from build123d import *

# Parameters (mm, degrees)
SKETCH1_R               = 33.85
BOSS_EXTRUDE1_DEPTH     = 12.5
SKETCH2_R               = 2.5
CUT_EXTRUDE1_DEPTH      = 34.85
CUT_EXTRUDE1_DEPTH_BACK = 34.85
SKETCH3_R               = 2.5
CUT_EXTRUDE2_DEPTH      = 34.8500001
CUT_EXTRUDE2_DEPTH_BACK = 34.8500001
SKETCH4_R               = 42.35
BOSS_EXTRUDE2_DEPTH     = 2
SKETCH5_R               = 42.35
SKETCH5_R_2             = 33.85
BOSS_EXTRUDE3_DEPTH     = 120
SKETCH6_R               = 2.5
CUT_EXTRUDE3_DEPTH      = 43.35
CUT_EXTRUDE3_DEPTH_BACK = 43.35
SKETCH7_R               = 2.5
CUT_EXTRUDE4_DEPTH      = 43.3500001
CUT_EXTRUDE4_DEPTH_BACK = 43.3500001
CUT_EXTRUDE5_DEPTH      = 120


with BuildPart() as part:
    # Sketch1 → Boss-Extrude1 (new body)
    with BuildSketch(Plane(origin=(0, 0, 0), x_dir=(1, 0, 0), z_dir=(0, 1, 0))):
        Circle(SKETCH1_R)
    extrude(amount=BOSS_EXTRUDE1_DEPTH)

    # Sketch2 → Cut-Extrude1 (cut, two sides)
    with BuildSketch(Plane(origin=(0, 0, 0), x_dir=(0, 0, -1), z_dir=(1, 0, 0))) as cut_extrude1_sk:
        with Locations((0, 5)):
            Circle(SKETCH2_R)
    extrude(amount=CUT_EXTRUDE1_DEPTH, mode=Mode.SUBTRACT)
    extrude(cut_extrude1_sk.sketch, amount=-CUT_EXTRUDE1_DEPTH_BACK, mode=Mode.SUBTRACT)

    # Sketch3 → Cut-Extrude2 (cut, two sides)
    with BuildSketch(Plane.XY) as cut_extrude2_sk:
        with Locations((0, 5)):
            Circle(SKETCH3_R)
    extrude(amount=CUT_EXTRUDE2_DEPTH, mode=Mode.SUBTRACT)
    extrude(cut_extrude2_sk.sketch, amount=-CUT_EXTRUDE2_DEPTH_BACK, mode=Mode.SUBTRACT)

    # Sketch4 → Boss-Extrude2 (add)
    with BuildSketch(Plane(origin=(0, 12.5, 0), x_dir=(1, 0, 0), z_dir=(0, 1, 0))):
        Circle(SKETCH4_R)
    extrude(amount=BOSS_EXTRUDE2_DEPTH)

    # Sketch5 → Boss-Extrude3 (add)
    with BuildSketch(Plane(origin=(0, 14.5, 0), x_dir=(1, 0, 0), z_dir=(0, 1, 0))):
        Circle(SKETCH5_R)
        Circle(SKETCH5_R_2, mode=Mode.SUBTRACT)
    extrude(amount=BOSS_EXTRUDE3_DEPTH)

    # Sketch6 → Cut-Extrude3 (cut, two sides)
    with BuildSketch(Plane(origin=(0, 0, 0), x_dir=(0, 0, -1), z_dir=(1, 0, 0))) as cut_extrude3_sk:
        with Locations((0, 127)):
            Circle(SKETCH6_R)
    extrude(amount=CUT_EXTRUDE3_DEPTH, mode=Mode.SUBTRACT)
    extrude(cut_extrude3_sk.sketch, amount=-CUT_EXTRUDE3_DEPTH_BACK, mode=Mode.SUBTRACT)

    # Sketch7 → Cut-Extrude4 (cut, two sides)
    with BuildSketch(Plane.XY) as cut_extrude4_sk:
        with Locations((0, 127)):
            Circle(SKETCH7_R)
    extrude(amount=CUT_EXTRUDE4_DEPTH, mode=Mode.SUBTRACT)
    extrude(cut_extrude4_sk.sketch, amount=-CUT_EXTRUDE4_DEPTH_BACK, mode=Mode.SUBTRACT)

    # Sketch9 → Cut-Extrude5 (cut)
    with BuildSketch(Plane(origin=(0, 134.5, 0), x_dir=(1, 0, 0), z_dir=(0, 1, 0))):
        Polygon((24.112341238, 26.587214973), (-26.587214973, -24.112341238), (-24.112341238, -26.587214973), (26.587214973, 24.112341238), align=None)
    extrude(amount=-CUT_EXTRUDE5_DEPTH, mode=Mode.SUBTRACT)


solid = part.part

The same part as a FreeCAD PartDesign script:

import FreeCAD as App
import Part
import Sketcher
from FreeCAD import Vector
Q = App.Units.Quantity

doc = App.newDocument("Part")
params = doc.addObject("Spreadsheet::Sheet", "Params")
for row, (alias, value) in enumerate([
    ("sketch1_diameter", "67.7 mm"),
    ("pad1_length", "12.5 mm"),
    ("sketch2_diameter", "5 mm"),
    ("sketch3_diameter", "5 mm"),
    ("sketch4_diameter", "84.7 mm"),
    ("pad2_length", "2 mm"),
    ("sketch5_diameter", "84.7 mm"),
    ("sketch5_diameter2", "67.7 mm"),
    ("pad3_length", "120 mm"),
    ("sketch6_diameter", "5 mm"),
    ("sketch7_diameter", "5 mm"),
    ("sketch8_length", "71.7 mm"),
    ("sketch8_length2", "3.5 mm"),
    ("pocket5_length", "120 mm"),
], start=1):
    params.set(f"A{row}", alias)
    params.set(f"B{row}", "=" + value)
    params.setAlias(f"B{row}", alias)

body = doc.addObject("PartDesign::Body", "Body")

sketch1 = doc.addObject("Sketcher::SketchObject", "Sketch")
body.addObject(sketch1)
sketch1.AttachmentSupport = (doc.XZ_Plane, [""])
sketch1.MapMode = "FlatFace"
sketch1.addGeometry(Part.Circle(Vector(0, 0, 0), Vector(0, 0, 1), 34), False)
sketch1.addConstraint([
    Sketcher.Constraint("Coincident", 0, 3, -1, 1),
    Sketcher.Constraint("Diameter", 0, Q("67.7 mm")),
])
sketch1.setExpression("Constraints[1]", "Params.sketch1_diameter")
pad1 = doc.addObject("PartDesign::Pad", "Pad")
body.addObject(pad1)
pad1.Profile = sketch1
pad1.setExpression("Length", "Params.pad1_length")
pad1.Reversed = True

sketch2 = doc.addObject("Sketcher::SketchObject", "Sketch001")
body.addObject(sketch2)
sketch2.AttachmentSupport = (doc.YZ_Plane, [""])
sketch2.MapMode = "FlatFace"
sketch2.addGeometry(Part.Circle(Vector(5, 0, 0), Vector(0, 0, 1), 2.5), False)
sketch2.addConstraint([
    Sketcher.Constraint("PointOnObject", 0, 3, -1),
    Sketcher.Constraint("Diameter", 0, Q("5 mm")),
    Sketcher.Constraint("DistanceX", -1, 1, 0, 3, Q("5 mm")),
])
sketch2.setExpression("Constraints[1]", "Params.sketch2_diameter")
pocket1 = doc.addObject("PartDesign::Pocket", "Pocket")
body.addObject(pocket1)
pocket1.Profile = sketch2
pocket1.Type = "ThroughAll"
pocket1.Midplane = True

sketch3 = doc.addObject("Sketcher::SketchObject", "Sketch002")
body.addObject(sketch3)
sketch3.AttachmentSupport = (doc.XY_Plane, [""])
sketch3.MapMode = "FlatFace"
sketch3.addGeometry(Part.Circle(Vector(0, 5, 0), Vector(0, 0, 1), 2.5), False)
sketch3.addConstraint([
    Sketcher.Constraint("PointOnObject", 0, 3, -2),
    Sketcher.Constraint("Diameter", 0, Q("5 mm")),
    Sketcher.Constraint("DistanceY", -1, 1, 0, 3, Q("5 mm")),
])
sketch3.setExpression("Constraints[1]", "Params.sketch3_diameter")
pocket2 = doc.addObject("PartDesign::Pocket", "Pocket001")
body.addObject(pocket2)
pocket2.Profile = sketch3
pocket2.Type = "ThroughAll"
pocket2.Midplane = True

sketch4 = doc.addObject("Sketcher::SketchObject", "Sketch003")
body.addObject(sketch4)
sketch4.AttachmentSupport = (doc.XZ_Plane, [""])
sketch4.MapMode = "FlatFace"
sketch4.AttachmentOffset = App.Placement(Vector(0, 0, -12.5), App.Rotation())
sketch4.addGeometry(Part.Circle(Vector(0, 0, 0), Vector(0, 0, 1), 42), False)
sketch4.addConstraint([
    Sketcher.Constraint("Coincident", 0, 3, -1, 1),
    Sketcher.Constraint("Diameter", 0, Q("84.7 mm")),
])
sketch4.setExpression("Constraints[1]", "Params.sketch4_diameter")
pad2 = doc.addObject("PartDesign::Pad", "Pad001")
body.addObject(pad2)
pad2.Profile = sketch4
pad2.setExpression("Length", "Params.pad2_length")
pad2.Reversed = True

sketch5 = doc.addObject("Sketcher::SketchObject", "Sketch004")
body.addObject(sketch5)
sketch5.AttachmentSupport = (doc.XZ_Plane, [""])
sketch5.MapMode = "FlatFace"
sketch5.AttachmentOffset = App.Placement(Vector(0, 0, -14.5), App.Rotation())
sketch5.addGeometry([
    Part.Circle(Vector(0, 0, 0), Vector(0, 0, 1), 42),
    Part.Circle(Vector(0, 0, 0), Vector(0, 0, 1), 34),
], False)
sketch5.addConstraint([
    Sketcher.Constraint("Coincident", 0, 3, -1, 1),
    Sketcher.Constraint("Coincident", 1, 3, -1, 1),
    Sketcher.Constraint("Diameter", 0, Q("84.7 mm")),
    Sketcher.Constraint("Diameter", 1, Q("67.7 mm")),
])
sketch5.setExpression("Constraints[2]", "Params.sketch5_diameter")
sketch5.setExpression("Constraints[3]", "Params.sketch5_diameter2")
pad3 = doc.addObject("PartDesign::Pad", "Pad002")
body.addObject(pad3)
pad3.Profile = sketch5
pad3.setExpression("Length", "Params.pad3_length")
pad3.Reversed = True

sketch6 = doc.addObject("Sketcher::SketchObject", "Sketch005")
body.addObject(sketch6)
sketch6.AttachmentSupport = (doc.YZ_Plane, [""])
sketch6.MapMode = "FlatFace"
sketch6.addGeometry(Part.Circle(Vector(127, 0, 0), Vector(0, 0, 1), 2.5), False)
sketch6.addConstraint([
    Sketcher.Constraint("PointOnObject", 0, 3, -1),
    Sketcher.Constraint("Diameter", 0, Q("5 mm")),
    Sketcher.Constraint("DistanceX", -1, 1, 0, 3, Q("127 mm")),
])
sketch6.setExpression("Constraints[1]", "Params.sketch6_diameter")
pocket3 = doc.addObject("PartDesign::Pocket", "Pocket002")
body.addObject(pocket3)
pocket3.Profile = sketch6
pocket3.Type = "ThroughAll"
pocket3.Midplane = True

sketch7 = doc.addObject("Sketcher::SketchObject", "Sketch006")
body.addObject(sketch7)
sketch7.AttachmentSupport = (doc.XY_Plane, [""])
sketch7.MapMode = "FlatFace"
sketch7.addGeometry(Part.Circle(Vector(0, 127, 0), Vector(0, 0, 1), 2.5), False)
sketch7.addConstraint([
    Sketcher.Constraint("PointOnObject", 0, 3, -2),
    Sketcher.Constraint("Diameter", 0, Q("5 mm")),
    Sketcher.Constraint("DistanceY", -1, 1, 0, 3, Q("127 mm")),
])
sketch7.setExpression("Constraints[1]", "Params.sketch7_diameter")
pocket4 = doc.addObject("PartDesign::Pocket", "Pocket003")
body.addObject(pocket4)
pocket4.Profile = sketch7
pocket4.Type = "ThroughAll"
pocket4.Midplane = True

sketch8 = doc.addObject("Sketcher::SketchObject", "Sketch007")
body.addObject(sketch8)
sketch8.AttachmentSupport = (doc.XZ_Plane, [""])
sketch8.MapMode = "FlatFace"
sketch8.AttachmentOffset = App.Placement(Vector(0, 0, -134.5), App.Rotation())
sketch8.addGeometry([
    Part.LineSegment(Vector(24.1, -26.6, 0), Vector(-26.6, 24.1, 0)),
    Part.LineSegment(Vector(-26.6, 24.1, 0), Vector(-24.1, 26.6, 0)),
    Part.LineSegment(Vector(-24.1, 26.6, 0), Vector(26.6, -24.1, 0)),
    Part.LineSegment(Vector(26.6, -24.1, 0), Vector(24.1, -26.6, 0)),
], False)
sketch8.addConstraint([
    Sketcher.Constraint("Coincident", 0, 2, 1, 1),
    Sketcher.Constraint("Coincident", 1, 2, 2, 1),
    Sketcher.Constraint("Coincident", 2, 2, 3, 1),
    Sketcher.Constraint("Coincident", 3, 2, 0, 1),
    Sketcher.Constraint("Symmetric", 0, 2, 2, 2, -1, 1),
    Sketcher.Constraint("Symmetric", 1, 2, 3, 2, -1, 1),
    Sketcher.Constraint("Perpendicular", 0, 1),
    Sketcher.Constraint("Angle", 0, Q("135 deg")),
    Sketcher.Constraint("Distance", 0, Q("71.7 mm")),
    Sketcher.Constraint("Distance", 1, Q("3.5 mm")),
])
sketch8.setExpression("Constraints[8]", "Params.sketch8_length")
sketch8.setExpression("Constraints[9]", "Params.sketch8_length2")
pocket5 = doc.addObject("PartDesign::Pocket", "Pocket004")
body.addObject(pocket5)
pocket5.Profile = sketch8
pocket5.setExpression("Length", "Params.pocket5_length")
pocket5.Reversed = True

doc.recompute()
